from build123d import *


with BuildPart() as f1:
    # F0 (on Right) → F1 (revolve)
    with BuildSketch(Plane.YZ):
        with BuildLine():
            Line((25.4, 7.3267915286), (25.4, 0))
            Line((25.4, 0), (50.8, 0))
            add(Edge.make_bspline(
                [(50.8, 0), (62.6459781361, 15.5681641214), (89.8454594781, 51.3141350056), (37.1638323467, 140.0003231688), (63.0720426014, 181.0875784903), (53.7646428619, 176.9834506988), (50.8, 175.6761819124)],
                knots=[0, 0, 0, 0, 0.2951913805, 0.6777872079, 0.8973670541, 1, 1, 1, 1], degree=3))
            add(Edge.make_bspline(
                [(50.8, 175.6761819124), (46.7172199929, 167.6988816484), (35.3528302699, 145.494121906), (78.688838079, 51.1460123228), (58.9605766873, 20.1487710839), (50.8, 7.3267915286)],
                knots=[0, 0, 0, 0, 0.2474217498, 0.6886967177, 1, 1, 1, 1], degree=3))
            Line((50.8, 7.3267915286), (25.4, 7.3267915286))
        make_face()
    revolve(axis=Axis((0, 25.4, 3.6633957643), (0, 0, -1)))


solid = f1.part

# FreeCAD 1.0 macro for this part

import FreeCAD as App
import Part
import Sketcher

V = App.Vector
Q = App.Units.Quantity

doc = App.newDocument("Part")
body = doc.addObject("PartDesign::Body", "Body")

# Sketch on YZ plane
sketch1 = body.newObject("Sketcher::SketchObject", "Sketch")
sketch1.AttachmentSupport = (doc.getObject("YZ_Plane"), [""])
sketch1.MapMode = "FlatFace"
sketch1.addGeometry([
    Part.LineSegment(V(25.4, 7.326792, 0), V(25.4, 0, 0)),  # 0
    Part.LineSegment(V(25.4, 0, 0), V(50.8, 0, 0)),  # 1
    Part.BSplineCurve([V(50.8, 0, 0), V(62.645978, 15.568164, 0), V(89.845459, 51.314135, 0), V(37.163832, 140.000323, 0), V(63.072043, 181.087578, 0), V(53.764643, 176.983451, 0), V(50.8, 175.676182, 0)], [4, 1, 1, 1, 4], [0, 0.29519138, 0.677787208, 0.897367054, 1], False, 3, [1, 1, 1, 1, 1, 1, 1], False),  # 2
    Part.BSplineCurve([V(50.8, 175.676182, 0), V(46.71722, 167.698882, 0), V(35.35283, 145.494122, 0), V(78.688838, 51.146012, 0), V(58.960577, 20.148771, 0), V(50.8, 7.326792, 0)], [4, 1, 1, 4], [0, 0.24742175, 0.688696718, 1], False, 3, [1, 1, 1, 1, 1, 1], False),  # 3
    Part.LineSegment(V(50.8, 7.326792, 0), V(25.4, 7.326792, 0)),  # 4
], False)
sketch1.addGeometry(Part.LineSegment(V(25.4, 175.676182, 0), V(25.4, 0, 0)), True)  # axis
sketch1.addConstraint([
    Sketcher.Constraint("Block", 2),
    Sketcher.Constraint("Block", 3),
    Sketcher.Constraint("Coincident", 0, 2, 1, 1),
    Sketcher.Constraint("Coincident", 1, 2, 2, 1),
    Sketcher.Constraint("Coincident", 3, 2, 4, 1),
    Sketcher.Constraint("Coincident", 4, 2, 0, 1),
    Sketcher.Constraint("Vertical", 0),
    Sketcher.Constraint("Horizontal", 1),
    Sketcher.Constraint("Horizontal", 4),
    Sketcher.Constraint("Vertical", 5),
    Sketcher.Constraint("Coincident", 5, 2, 0, 2),
    Sketcher.Constraint("DistanceX", 1, 1, 1, 2, Q("1 in")),
    Sketcher.Constraint("DistanceY", 5, 2, 5, 1, Q("175.676182 mm")),
])
revolution = body.newObject("PartDesign::Revolution", "Revolution")
revolution.Profile = sketch1
revolution.ReferenceAxis = (sketch1, ["Axis0"])
revolution.Angle = 360

doc.recompute()
